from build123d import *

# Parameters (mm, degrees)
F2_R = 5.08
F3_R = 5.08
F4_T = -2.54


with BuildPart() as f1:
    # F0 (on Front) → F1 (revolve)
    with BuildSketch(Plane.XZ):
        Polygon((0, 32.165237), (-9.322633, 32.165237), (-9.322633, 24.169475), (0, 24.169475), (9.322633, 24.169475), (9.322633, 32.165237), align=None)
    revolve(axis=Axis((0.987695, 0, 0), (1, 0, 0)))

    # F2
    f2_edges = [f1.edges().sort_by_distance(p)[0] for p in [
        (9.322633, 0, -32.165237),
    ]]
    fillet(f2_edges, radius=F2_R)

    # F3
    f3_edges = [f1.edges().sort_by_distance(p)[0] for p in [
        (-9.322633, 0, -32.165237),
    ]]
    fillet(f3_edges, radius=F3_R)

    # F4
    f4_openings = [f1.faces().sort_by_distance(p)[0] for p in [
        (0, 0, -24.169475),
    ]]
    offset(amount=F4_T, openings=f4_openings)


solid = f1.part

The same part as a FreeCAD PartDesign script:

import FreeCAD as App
import Part
import Sketcher
from FreeCAD import Vector
Q = App.Units.Quantity


def edges_at(feature, points):
    """Names of the edges that pass closest to the given points."""
    edges = feature.Shape.Edges
    near = lambda p: min(range(len(edges)), key=lambda i: edges[i].distToShape(Part.Vertex(*p))[0])
    return sorted({f"Edge{near(p) + 1}" for p in points})


def faces_at(feature, points):
    """Names of the faces that lie closest to the given points."""
    faces = feature.Shape.Faces
    near = lambda p: min(range(len(faces)), key=lambda i: faces[i].distToShape(Part.Vertex(*p))[0])
    return sorted({f"Face{near(p) + 1}" for p in points})

doc = App.newDocument("Part")
params = doc.addObject("Spreadsheet::Sheet", "Params")
for row, (alias, value) in enumerate([
    ("revolution_angle", "360 deg"),
    ("fillet_radius", "0.2 in"),
    ("fillet2_radius", "0.2 in"),
    ("thickness_wall", "0.1 in"),
], start=1):
    params.set(f"A{row}", alias)
    params.set(f"B{row}", "=" + value)
    params.setAlias(f"B{row}", alias)

body = doc.addObject("PartDesign::Body", "Body")

sketch1 = body.newObject("Sketcher::SketchObject", "Sketch")
sketch1.AttachmentSupport = (doc.getObject("XZ_Plane"), [""])
sketch1.MapMode = "FlatFace"
sketch1.addGeometry([
    Part.LineSegment(Vector(-9.322633, 32.165237, 0), Vector(-9.322633, 24.169475, 0)),
    Part.LineSegment(Vector(-9.322633, 24.169475, 0), Vector(9.322633, 24.169475, 0)),
    Part.LineSegment(Vector(9.322633, 24.169475, 0), Vector(9.322633, 32.165237, 0)),
    Part.LineSegment(Vector(9.322633, 32.165237, 0), Vector(-9.322633, 32.165237, 0)),
], False)
sketch1.addConstraint([
    Sketcher.Constraint("Coincident", 0, 2, 1, 1),
    Sketcher.Constraint("Coincident", 1, 2, 2, 1),
    Sketcher.Constraint("Coincident", 2, 2, 3, 1),
    Sketcher.Constraint("Coincident", 3, 2, 0, 1),
    Sketcher.Constraint("Vertical", 0),
    Sketcher.Constraint("Horizontal", 1),
    Sketcher.Constraint("Vertical", 2),
    Sketcher.Constraint("Horizontal", 3),
    Sketcher.Constraint("DistanceY", 0, 2, 0, 1, Q("7.995762 mm")),
    Sketcher.Constraint("DistanceX", 1, 1, 1, 2, Q("18.645266 mm")),
    Sketcher.Constraint("DistanceX", 0, 2, -1, 1, Q("9.322633 mm")),
    Sketcher.Constraint("DistanceY", -1, 1, 0, 2, Q("24.169475 mm")),
])
revolution = body.newObject("PartDesign::Revolution", "Revolution")
revolution.Profile = sketch1
revolution.ReferenceAxis = (sketch1, ["H_Axis"])
revolution.setExpression("Angle", "Params.revolution_angle")
doc.recompute()

fillet = body.newObject("PartDesign::Fillet", "Fillet")
fillet.Base = (revolution, edges_at(revolution, [(9.323, 0, -32.165)]))
fillet.setExpression("Radius", "Params.fillet_radius")
doc.recompute()

fillet2 = body.newObject("PartDesign::Fillet", "Fillet001")
fillet2.Base = (fillet, edges_at(fillet, [(-9.323, 0, -32.165)]))
fillet2.setExpression("Radius", "Params.fillet2_radius")
doc.recompute()

thickness = body.newObject("PartDesign::Thickness", "Thickness")
thickness.Base = (fillet2, faces_at(fillet2, [(0, 0, -24.169)]))
thickness.setExpression("Value", "Params.thickness_wall")
thickness.Reversed = True
thickness.Join = "Arc"

doc.recompute()
